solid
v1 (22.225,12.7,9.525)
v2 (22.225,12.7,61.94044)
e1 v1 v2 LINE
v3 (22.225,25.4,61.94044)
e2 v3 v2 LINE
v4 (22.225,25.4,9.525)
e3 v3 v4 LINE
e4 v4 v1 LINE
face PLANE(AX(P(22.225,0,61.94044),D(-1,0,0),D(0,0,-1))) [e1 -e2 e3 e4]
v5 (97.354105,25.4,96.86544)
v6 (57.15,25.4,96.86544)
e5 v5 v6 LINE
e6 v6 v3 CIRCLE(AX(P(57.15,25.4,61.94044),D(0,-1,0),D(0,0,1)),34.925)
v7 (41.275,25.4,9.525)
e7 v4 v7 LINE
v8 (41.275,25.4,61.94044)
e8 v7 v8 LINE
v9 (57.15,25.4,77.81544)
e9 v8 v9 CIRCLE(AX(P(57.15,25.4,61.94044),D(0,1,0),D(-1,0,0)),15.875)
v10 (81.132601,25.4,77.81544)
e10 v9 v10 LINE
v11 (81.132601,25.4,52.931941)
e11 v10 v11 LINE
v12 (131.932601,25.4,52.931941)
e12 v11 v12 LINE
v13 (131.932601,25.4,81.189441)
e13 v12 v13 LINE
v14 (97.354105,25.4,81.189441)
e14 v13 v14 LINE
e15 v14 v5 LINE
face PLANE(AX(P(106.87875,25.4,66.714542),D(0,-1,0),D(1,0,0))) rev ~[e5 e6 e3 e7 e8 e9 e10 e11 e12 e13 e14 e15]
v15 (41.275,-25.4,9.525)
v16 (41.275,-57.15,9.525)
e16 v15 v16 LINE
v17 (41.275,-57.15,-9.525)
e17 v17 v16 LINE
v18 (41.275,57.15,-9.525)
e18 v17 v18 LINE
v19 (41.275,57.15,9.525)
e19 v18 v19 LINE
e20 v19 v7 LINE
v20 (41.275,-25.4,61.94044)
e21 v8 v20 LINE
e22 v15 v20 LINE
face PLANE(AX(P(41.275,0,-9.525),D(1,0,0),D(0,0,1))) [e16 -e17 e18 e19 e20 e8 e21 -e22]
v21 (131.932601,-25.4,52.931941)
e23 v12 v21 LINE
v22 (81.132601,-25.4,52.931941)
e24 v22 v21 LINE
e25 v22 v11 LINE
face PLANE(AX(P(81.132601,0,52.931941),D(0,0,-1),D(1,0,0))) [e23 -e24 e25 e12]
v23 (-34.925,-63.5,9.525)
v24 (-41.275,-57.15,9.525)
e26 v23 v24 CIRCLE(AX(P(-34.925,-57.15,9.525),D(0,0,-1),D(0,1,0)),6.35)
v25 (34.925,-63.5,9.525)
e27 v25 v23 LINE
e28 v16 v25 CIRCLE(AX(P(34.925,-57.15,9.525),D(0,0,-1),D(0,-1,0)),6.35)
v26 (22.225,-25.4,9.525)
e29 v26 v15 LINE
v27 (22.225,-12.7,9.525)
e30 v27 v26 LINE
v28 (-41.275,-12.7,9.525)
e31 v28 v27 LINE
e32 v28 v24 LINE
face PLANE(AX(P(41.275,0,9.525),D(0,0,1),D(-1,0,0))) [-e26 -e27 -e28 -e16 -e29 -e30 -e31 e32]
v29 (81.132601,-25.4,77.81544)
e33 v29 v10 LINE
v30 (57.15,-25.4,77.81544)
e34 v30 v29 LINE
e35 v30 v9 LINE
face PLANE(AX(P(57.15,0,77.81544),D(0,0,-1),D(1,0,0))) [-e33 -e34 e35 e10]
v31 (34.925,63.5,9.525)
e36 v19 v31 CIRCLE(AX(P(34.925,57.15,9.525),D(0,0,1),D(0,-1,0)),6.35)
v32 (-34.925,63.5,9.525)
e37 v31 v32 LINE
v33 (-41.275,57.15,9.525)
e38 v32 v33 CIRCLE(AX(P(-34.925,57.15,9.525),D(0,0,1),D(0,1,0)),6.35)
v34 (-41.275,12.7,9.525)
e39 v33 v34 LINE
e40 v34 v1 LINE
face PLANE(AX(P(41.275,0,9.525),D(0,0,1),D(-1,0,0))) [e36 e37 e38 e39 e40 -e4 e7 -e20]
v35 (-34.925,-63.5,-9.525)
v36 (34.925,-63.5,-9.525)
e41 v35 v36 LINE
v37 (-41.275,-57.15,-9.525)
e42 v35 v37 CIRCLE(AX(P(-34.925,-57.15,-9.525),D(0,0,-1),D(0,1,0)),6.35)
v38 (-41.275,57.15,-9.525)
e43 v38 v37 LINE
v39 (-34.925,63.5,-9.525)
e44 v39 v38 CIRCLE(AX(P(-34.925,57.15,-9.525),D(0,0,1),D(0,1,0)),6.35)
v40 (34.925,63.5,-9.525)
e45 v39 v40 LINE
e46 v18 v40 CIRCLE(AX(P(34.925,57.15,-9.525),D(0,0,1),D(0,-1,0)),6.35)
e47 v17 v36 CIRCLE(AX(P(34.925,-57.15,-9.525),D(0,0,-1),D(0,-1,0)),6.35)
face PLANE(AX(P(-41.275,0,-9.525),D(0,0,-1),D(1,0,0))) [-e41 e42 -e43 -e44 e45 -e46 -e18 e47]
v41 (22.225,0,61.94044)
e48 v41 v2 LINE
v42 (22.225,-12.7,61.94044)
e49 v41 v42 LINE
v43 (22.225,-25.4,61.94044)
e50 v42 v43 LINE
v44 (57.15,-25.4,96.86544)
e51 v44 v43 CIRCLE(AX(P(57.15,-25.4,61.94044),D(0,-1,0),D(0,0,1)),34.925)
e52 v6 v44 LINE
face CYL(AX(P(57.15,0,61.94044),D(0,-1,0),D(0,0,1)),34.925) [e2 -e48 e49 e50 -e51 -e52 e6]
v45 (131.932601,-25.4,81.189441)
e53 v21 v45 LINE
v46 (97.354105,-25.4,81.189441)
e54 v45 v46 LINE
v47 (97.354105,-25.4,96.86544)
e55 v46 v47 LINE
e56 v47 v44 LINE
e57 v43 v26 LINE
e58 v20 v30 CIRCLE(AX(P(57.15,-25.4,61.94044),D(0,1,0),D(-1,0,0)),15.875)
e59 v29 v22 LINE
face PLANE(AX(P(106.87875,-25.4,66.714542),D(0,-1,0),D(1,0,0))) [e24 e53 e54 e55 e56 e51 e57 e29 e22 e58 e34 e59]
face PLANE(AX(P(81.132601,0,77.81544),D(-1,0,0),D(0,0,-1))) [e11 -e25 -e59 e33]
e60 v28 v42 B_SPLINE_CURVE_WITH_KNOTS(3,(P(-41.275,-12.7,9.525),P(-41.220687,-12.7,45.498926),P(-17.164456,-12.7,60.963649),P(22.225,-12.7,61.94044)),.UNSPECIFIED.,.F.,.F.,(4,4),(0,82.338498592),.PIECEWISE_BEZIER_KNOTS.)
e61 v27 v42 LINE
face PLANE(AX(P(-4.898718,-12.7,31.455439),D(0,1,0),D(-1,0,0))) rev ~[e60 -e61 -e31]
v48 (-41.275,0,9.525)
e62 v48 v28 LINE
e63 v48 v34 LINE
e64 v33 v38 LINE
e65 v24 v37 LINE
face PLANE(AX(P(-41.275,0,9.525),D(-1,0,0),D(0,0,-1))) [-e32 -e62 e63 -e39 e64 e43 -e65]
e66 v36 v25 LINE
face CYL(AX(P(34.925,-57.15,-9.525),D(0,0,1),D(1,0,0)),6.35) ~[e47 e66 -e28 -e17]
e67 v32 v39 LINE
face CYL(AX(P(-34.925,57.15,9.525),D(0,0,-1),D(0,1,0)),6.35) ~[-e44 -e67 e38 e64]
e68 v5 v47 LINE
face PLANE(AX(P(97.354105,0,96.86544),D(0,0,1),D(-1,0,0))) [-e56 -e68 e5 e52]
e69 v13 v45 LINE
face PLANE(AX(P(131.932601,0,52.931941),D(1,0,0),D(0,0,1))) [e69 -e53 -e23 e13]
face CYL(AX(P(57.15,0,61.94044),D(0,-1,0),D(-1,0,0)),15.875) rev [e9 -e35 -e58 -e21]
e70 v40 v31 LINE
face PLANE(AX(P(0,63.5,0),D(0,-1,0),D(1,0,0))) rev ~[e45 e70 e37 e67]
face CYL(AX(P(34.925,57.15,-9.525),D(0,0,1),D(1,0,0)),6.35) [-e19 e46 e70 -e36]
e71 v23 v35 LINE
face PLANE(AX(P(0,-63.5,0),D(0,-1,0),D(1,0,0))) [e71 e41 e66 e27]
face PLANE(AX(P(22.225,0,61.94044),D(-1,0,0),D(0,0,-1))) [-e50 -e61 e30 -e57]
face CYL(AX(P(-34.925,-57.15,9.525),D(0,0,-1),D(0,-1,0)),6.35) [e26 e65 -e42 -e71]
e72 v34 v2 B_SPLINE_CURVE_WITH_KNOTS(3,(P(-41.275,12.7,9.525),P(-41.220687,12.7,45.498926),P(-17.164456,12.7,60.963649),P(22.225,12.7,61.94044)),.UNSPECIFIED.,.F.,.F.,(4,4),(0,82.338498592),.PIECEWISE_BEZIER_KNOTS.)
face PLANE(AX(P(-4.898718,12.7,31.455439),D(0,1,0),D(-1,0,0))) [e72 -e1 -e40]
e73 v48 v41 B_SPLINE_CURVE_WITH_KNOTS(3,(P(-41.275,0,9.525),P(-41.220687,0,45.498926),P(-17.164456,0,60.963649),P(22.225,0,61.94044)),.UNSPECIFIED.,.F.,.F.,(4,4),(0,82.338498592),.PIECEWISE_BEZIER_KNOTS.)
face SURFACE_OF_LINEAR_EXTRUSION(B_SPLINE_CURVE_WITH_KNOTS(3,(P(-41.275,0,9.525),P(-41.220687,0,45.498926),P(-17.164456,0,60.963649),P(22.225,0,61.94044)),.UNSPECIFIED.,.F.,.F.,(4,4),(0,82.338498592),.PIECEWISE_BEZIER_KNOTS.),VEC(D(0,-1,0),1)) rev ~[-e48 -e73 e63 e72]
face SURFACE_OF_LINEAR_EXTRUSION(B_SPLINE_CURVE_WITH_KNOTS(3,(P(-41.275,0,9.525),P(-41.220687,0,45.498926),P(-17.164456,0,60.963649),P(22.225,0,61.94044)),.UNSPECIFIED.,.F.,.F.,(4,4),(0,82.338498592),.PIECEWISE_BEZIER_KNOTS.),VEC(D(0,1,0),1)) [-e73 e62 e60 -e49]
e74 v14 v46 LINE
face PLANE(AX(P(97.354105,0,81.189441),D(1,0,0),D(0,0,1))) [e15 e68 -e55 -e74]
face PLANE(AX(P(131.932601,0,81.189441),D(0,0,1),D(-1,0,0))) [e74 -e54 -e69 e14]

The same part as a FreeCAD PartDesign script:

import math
import FreeCAD as App
import Part
import Sketcher
from FreeCAD import Vector
Q = App.Units.Quantity


def edges_at(feature, points):
    """Names of the edges that pass closest to the given points."""
    edges = feature.Shape.Edges
    near = lambda p: min(range(len(edges)), key=lambda i: edges[i].distToShape(Part.Vertex(*p))[0])
    return sorted({f"Edge{near(p) + 1}" for p in points})


def add_polygon(sketch, points):
    """Adds a closed chain of lines whose ends are joined by coincident constraints."""
    first, n = sketch.GeometryCount, len(points)
    for a, b in zip(points, points[1:] + points[:1]):
        sketch.addGeometry(Part.LineSegment(App.Vector(*a, 0), App.Vector(*b, 0)), False)
    for i in range(n):
        sketch.addConstraint(Sketcher.Constraint("Coincident", first + i, 2, first + (i + 1) % n, 1))

doc = App.newDocument("Part")
body = doc.addObject("PartDesign::Body", "Body")

# Sketch on XZ plane
sketch1 = body.newObject("Sketcher::SketchObject", "Sketch")
sketch1.AttachmentSupport = (doc.getObject("XZ_Plane"), [""])
sketch1.MapMode = "FlatFace"
add_polygon(sketch1, [(-41, -10), (41, -10), (41, 10), (-41, 10)])  # lines 0-3
sketch1.addConstraint(Sketcher.Constraint("Horizontal", 0))
sketch1.addConstraint(Sketcher.Constraint("Vertical", 1))
sketch1.addConstraint(Sketcher.Constraint("Horizontal", 2))
sketch1.addConstraint(Sketcher.Constraint("Vertical", 3))
sketch1.addConstraint(Sketcher.Constraint("Symmetric", 0, 2, 2, 2, -1, 1))
sketch1.addConstraint(Sketcher.Constraint("DistanceX", 0, 1, 0, 2, Q("3.25 in")))
sketch1.addConstraint(Sketcher.Constraint("DistanceY", 1, 1, 1, 2, Q("0.75 in")))
pad1 = body.newObject("PartDesign::Pad", "Pad")
pad1.Profile = sketch1
pad1.Length = Q("5 in")
pad1.Midplane = True

# Sketch on XZ plane
sketch2 = body.newObject("Sketcher::SketchObject", "Sketch001")
sketch2.AttachmentSupport = (doc.getObject("XZ_Plane"), [""])
sketch2.MapMode = "FlatFace"
sketch2.addGeometry(Part.LineSegment(Vector(81, 53, 0), Vector(132, 53, 0)), False)
sketch2.addGeometry(Part.LineSegment(Vector(132, 53, 0), Vector(132, 81, 0)), False)
sketch2.addGeometry(Part.LineSegment(Vector(132, 81, 0), Vector(97, 81, 0)), False)
sketch2.addGeometry(Part.LineSegment(Vector(97, 81, 0), Vector(97, 97, 0)), False)
sketch2.addGeometry(Part.LineSegment(Vector(97, 97, 0), Vector(57, 97, 0)), False)
sketch2.addGeometry(Part.ArcOfCircle(Part.Circle(Vector(57, 62, 0), Vector(0, 0, 1), 35), math.radians(90), math.radians(180)), False)
sketch2.addGeometry(Part.LineSegment(Vector(22, 62, 0), Vector(22, 10, 0)), False)
sketch2.addGeometry(Part.LineSegment(Vector(22, 10, 0), Vector(-41, 10, 0)), False)
sketch2.addGeometry(Part.LineSegment(Vector(-41, 10, 0), Vector(-41, -10, 0)), False)
sketch2.addGeometry(Part.LineSegment(Vector(-41, -10, 0), Vector(41, -10, 0)), False)
sketch2.addGeometry(Part.LineSegment(Vector(41, -10, 0), Vector(41, 62, 0)), False)
sketch2.addGeometry(Part.ArcOfCircle(Part.Circle(Vector(57, 62, 0), Vector(0, 0, 1), 16), math.radians(90), math.radians(180)), False)
sketch2.addGeometry(Part.LineSegment(Vector(57, 78, 0), Vector(81, 78, 0)), False)
sketch2.addGeometry(Part.LineSegment(Vector(81, 78, 0), Vector(81, 53, 0)), False)
sketch2.addConstraint(Sketcher.Constraint("Coincident", 0, 2, 1, 1))
sketch2.addConstraint(Sketcher.Constraint("Coincident", 1, 2, 2, 1))
sketch2.addConstraint(Sketcher.Constraint("Coincident", 2, 2, 3, 1))
sketch2.addConstraint(Sketcher.Constraint("Coincident", 3, 2, 4, 1))
sketch2.addConstraint(Sketcher.Constraint("Tangent", 4, 2, 5, 1))
sketch2.addConstraint(Sketcher.Constraint("Tangent", 5, 2, 6, 1))
sketch2.addConstraint(Sketcher.Constraint("Coincident", 6, 2, 7, 1))
sketch2.addConstraint(Sketcher.Constraint("Coincident", 7, 2, 8, 1))
sketch2.addConstraint(Sketcher.Constraint("Coincident", 8, 2, 9, 1))
sketch2.addConstraint(Sketcher.Constraint("Coincident", 9, 2, 10, 1))
sketch2.addConstraint(Sketcher.Constraint("Tangent", 10, 2, 11, 2))
sketch2.addConstraint(Sketcher.Constraint("Tangent", 11, 1, 12, 1))
sketch2.addConstraint(Sketcher.Constraint("Coincident", 12, 2, 13, 1))
sketch2.addConstraint(Sketcher.Constraint("Coincident", 13, 2, 0, 1))
sketch2.addConstraint(Sketcher.Constraint("Horizontal", 0))
sketch2.addConstraint(Sketcher.Constraint("Vertical", 1))
sketch2.addConstraint(Sketcher.Constraint("Horizontal", 2))
sketch2.addConstraint(Sketcher.Constraint("Vertical", 3))
sketch2.addConstraint(Sketcher.Constraint("Horizontal", 4))
sketch2.addConstraint(Sketcher.Constraint("Vertical", 6))
sketch2.addConstraint(Sketcher.Constraint("Horizontal", 7))
sketch2.addConstraint(Sketcher.Constraint("Vertical", 8))
sketch2.addConstraint(Sketcher.Constraint("Horizontal", 9))
sketch2.addConstraint(Sketcher.Constraint("Vertical", 10))
sketch2.addConstraint(Sketcher.Constraint("Horizontal", 12))
sketch2.addConstraint(Sketcher.Constraint("Vertical", 13))
sketch2.addConstraint(Sketcher.Constraint("Coincident", 11, 3, 5, 3))
sketch2.addConstraint(Sketcher.Constraint("Symmetric", 7, 2, 9, 2, -1, 1))
sketch2.addConstraint(Sketcher.Constraint("DistanceX", 0, 1, 0, 2, Q("2 in")))
sketch2.addConstraint(Sketcher.Constraint("DistanceX", 7, 2, 7, 1, Q("2.5 in")))
sketch2.addConstraint(Sketcher.Constraint("Radius", 5, Q("1.375 in")))
sketch2.addConstraint(Sketcher.Constraint("Radius", 11, Q("0.625 in")))
sketch2.addConstraint(Sketcher.Constraint("DistanceY", 8, 2, 8, 1, Q("0.75 in")))
sketch2.addConstraint(Sketcher.Constraint("DistanceY", 1, 1, 1, 2, Q("1.1125 in")))
sketch2.addConstraint(Sketcher.Constraint("DistanceY", 6, 2, 6, 1, Q("2.0636 in")))
sketch2.addConstraint(Sketcher.Constraint("DistanceX", 12, 1, 12, 2, 23.982601))
sketch2.addConstraint(Sketcher.Constraint("DistanceY", 3, 1, 3, 2, 15.675999))
sketch2.addConstraint(Sketcher.Constraint("DistanceX", 2, 2, 2, 1, 34.578496))
pad2 = body.newObject("PartDesign::Pad", "Pad001")
pad2.Profile = sketch2
pad2.Length = Q("2 in")
pad2.Midplane = True

# Sketch on XZ plane
sketch3 = body.newObject("Sketcher::SketchObject", "Sketch002")
sketch3.AttachmentSupport = (doc.getObject("XZ_Plane"), [""])
sketch3.MapMode = "FlatFace"
sketch3.addGeometry(Part.BSplineCurve([Vector(-41.275, 9.525, 0), Vector(-41.220687, 45.498926, 0), Vector(-17.164456, 60.963649, 0), Vector(22.225, 61.94044, 0)], [4, 4], [0, 82.338498592], False, 3, [1, 1, 1, 1], False), False)
sketch3.addGeometry(Part.LineSegment(Vector(-41.275, 9.525, 0), Vector(22.225, 9.525, 0)), False)
sketch3.addGeometry(Part.LineSegment(Vector(22.225, 9.525, 0), Vector(22.225, 61.94044, 0)), False)
sketch3.addConstraint(Sketcher.Constraint("Block", 0))
sketch3.addConstraint(Sketcher.Constraint("Coincident", 0, 1, 1, 1))
sketch3.addConstraint(Sketcher.Constraint("Coincident", 1, 2, 2, 1))
sketch3.addConstraint(Sketcher.Constraint("Coincident", 2, 2, 0, 2))
sketch3.addConstraint(Sketcher.Constraint("Horizontal", 1))
sketch3.addConstraint(Sketcher.Constraint("Vertical", 2))
pad3 = body.newObject("PartDesign::Pad", "Pad002")
pad3.Profile = sketch3
pad3.Length = Q("1 in")
pad3.Midplane = True
doc.recompute()

fillet = body.newObject("PartDesign::Fillet", "Fillet")
fillet.Base = (pad3, edges_at(pad3, [
    (41.275, -63.5, 0),
    (-41.275, -63.5, 0),
    (41.275, 63.5, 0),
    (-41.275, 63.5, 0),
]))
fillet.Radius = Q("0.25 in")

doc.recompute()
